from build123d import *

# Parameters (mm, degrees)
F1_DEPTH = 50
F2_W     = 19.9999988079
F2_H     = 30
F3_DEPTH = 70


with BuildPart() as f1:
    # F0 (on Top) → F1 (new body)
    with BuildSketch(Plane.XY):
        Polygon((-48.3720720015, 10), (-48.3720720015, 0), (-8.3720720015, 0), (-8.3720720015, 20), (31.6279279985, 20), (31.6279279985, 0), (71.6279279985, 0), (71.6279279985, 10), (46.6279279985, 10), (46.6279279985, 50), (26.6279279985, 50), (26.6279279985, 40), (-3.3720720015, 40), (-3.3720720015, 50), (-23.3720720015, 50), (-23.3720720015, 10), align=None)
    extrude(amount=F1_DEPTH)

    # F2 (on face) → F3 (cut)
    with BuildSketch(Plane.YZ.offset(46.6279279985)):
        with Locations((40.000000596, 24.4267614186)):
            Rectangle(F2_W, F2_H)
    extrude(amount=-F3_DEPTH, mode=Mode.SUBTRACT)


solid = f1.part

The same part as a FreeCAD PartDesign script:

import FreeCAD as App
import Part
import Sketcher
from FreeCAD import Vector
Q = App.Units.Quantity

doc = App.newDocument("Part")
body = doc.addObject("PartDesign::Body", "Body")

sketch1 = body.newObject("Sketcher::SketchObject", "Sketch")
sketch1.AttachmentSupport = (doc.getObject("XY_Plane"), [""])
sketch1.MapMode = "FlatFace"
sketch1.addGeometry(Part.LineSegment(Vector(-48.372072, 10, 0), Vector(-48.372072, 0, 0)), False)
sketch1.addGeometry(Part.LineSegment(Vector(-48.372072, 0, 0), Vector(-8.372072, 0, 0)), False)
sketch1.addGeometry(Part.LineSegment(Vector(-8.372072, 0, 0), Vector(-8.372072, 20, 0)), False)
sketch1.addGeometry(Part.LineSegment(Vector(-8.372072, 20, 0), Vector(31.627928, 20, 0)), False)
sketch1.addGeometry(Part.LineSegment(Vector(31.627928, 20, 0), Vector(31.627928, 0, 0)), False)
sketch1.addGeometry(Part.LineSegment(Vector(31.627928, 0, 0), Vector(71.627928, 0, 0)), False)
sketch1.addGeometry(Part.LineSegment(Vector(71.627928, 0, 0), Vector(71.627928, 10, 0)), False)
sketch1.addGeometry(Part.LineSegment(Vector(71.627928, 10, 0), Vector(46.627928, 10, 0)), False)
sketch1.addGeometry(Part.LineSegment(Vector(46.627928, 10, 0), Vector(46.627928, 50, 0)), False)
sketch1.addGeometry(Part.LineSegment(Vector(46.627928, 50, 0), Vector(26.627928, 50, 0)), False)
sketch1.addGeometry(Part.LineSegment(Vector(26.627928, 50, 0), Vector(26.627928, 40, 0)), False)
sketch1.addGeometry(Part.LineSegment(Vector(26.627928, 40, 0), Vector(-3.372072, 40, 0)), False)
sketch1.addGeometry(Part.LineSegment(Vector(-3.372072, 40, 0), Vector(-3.372072, 50, 0)), False)
sketch1.addGeometry(Part.LineSegment(Vector(-3.372072, 50, 0), Vector(-23.372072, 50, 0)), False)
sketch1.addGeometry(Part.LineSegment(Vector(-23.372072, 50, 0), Vector(-23.372072, 10, 0)), False)
sketch1.addGeometry(Part.LineSegment(Vector(-23.372072, 10, 0), Vector(-48.372072, 10, 0)), False)
sketch1.addConstraint(Sketcher.Constraint("Coincident", 0, 2, 1, 1))
sketch1.addConstraint(Sketcher.Constraint("Coincident", 1, 2, 2, 1))
sketch1.addConstraint(Sketcher.Constraint("Coincident", 2, 2, 3, 1))
sketch1.addConstraint(Sketcher.Constraint("Coincident", 3, 2, 4, 1))
sketch1.addConstraint(Sketcher.Constraint("Coincident", 4, 2, 5, 1))
sketch1.addConstraint(Sketcher.Constraint("Coincident", 5, 2, 6, 1))
sketch1.addConstraint(Sketcher.Constraint("Coincident", 6, 2, 7, 1))
sketch1.addConstraint(Sketcher.Constraint("Coincident", 7, 2, 8, 1))
sketch1.addConstraint(Sketcher.Constraint("Coincident", 8, 2, 9, 1))
sketch1.addConstraint(Sketcher.Constraint("Coincident", 9, 2, 10, 1))
sketch1.addConstraint(Sketcher.Constraint("Coincident", 10, 2, 11, 1))
sketch1.addConstraint(Sketcher.Constraint("Coincident", 11, 2, 12, 1))
sketch1.addConstraint(Sketcher.Constraint("Coincident", 12, 2, 13, 1))
sketch1.addConstraint(Sketcher.Constraint("Coincident", 13, 2, 14, 1))
sketch1.addConstraint(Sketcher.Constraint("Coincident", 14, 2, 15, 1))
sketch1.addConstraint(Sketcher.Constraint("Coincident", 15, 2, 0, 1))
sketch1.addConstraint(Sketcher.Constraint("Vertical", 0))
sketch1.addConstraint(Sketcher.Constraint("Horizontal", 1))
sketch1.addConstraint(Sketcher.Constraint("Vertical", 2))
sketch1.addConstraint(Sketcher.Constraint("Horizontal", 3))
sketch1.addConstraint(Sketcher.Constraint("Vertical", 4))
sketch1.addConstraint(Sketcher.Constraint("Horizontal", 5))
sketch1.addConstraint(Sketcher.Constraint("Vertical", 6))
sketch1.addConstraint(Sketcher.Constraint("Horizontal", 7))
sketch1.addConstraint(Sketcher.Constraint("Vertical", 8))
sketch1.addConstraint(Sketcher.Constraint("Horizontal", 9))
sketch1.addConstraint(Sketcher.Constraint("Vertical", 10))
sketch1.addConstraint(Sketcher.Constraint("Horizontal", 11))
sketch1.addConstraint(Sketcher.Constraint("Vertical", 12))
sketch1.addConstraint(Sketcher.Constraint("Horizontal", 13))
sketch1.addConstraint(Sketcher.Constraint("Vertical", 14))
sketch1.addConstraint(Sketcher.Constraint("Horizontal", 15))
sketch1.addConstraint(Sketcher.Constraint("PointOnObject", 0, 2, -1))
sketch1.addConstraint(Sketcher.Constraint("PointOnObject", 4, 2, -1))
sketch1.addConstraint(Sketcher.Constraint("Horizontal", 9, 2, 12, 2))
sketch1.addConstraint(Sketcher.Constraint("Horizontal", 7, 2, 14, 2))
sketch1.addConstraint(Sketcher.Constraint("Equal", 1, 3))
sketch1.addConstraint(Sketcher.Constraint("Equal", 3, 5))
sketch1.addConstraint(Sketcher.Constraint("Equal", 9, 13))
sketch1.addConstraint(Sketcher.Constraint("Equal", 7, 15))
sketch1.addConstraint(Sketcher.Constraint("Equal", 13, 2))
sketch1.addConstraint(Sketcher.Constraint("Equal", 5, 8))
sketch1.addConstraint(Sketcher.Constraint("Equal", 6, 10))
sketch1.addConstraint(Sketcher.Constraint("DistanceX", 1, 1, 1, 2, Q("40 mm")))
sketch1.addConstraint(Sketcher.Constraint("DistanceX", 7, 2, 7, 1, Q("25 mm")))
sketch1.addConstraint(Sketcher.Constraint("DistanceX", 9, 2, 9, 1, Q("20 mm")))
sketch1.addConstraint(Sketcher.Constraint("DistanceY", 0, 2, 0, 1, Q("10 mm")))
sketch1.addConstraint(Sketcher.Constraint("DistanceX", 0, 2, -1, 1, Q("48.372072 mm")))
pad1 = body.newObject("PartDesign::Pad", "Pad")
pad1.Profile = sketch1
pad1.Length = 50

sketch2 = body.newObject("Sketcher::SketchObject", "Sketch001")
sketch2.AttachmentSupport = (doc.getObject("YZ_Plane"), [""])
sketch2.MapMode = "FlatFace"
sketch2.AttachmentOffset = App.Placement(Vector(0, 0, 46.627928), App.Rotation())
sketch2.addGeometry(Part.LineSegment(Vector(30.000001, 39.426761, 0), Vector(30.000001, 9.426761, 0)), False)
sketch2.addGeometry(Part.LineSegment(Vector(30.000001, 9.426761, 0), Vector(50, 9.426761, 0)), False)
sketch2.addGeometry(Part.LineSegment(Vector(50, 9.426761, 0), Vector(50, 39.426761, 0)), False)
sketch2.addGeometry(Part.LineSegment(Vector(50, 39.426761, 0), Vector(30.000001, 39.426761, 0)), False)
sketch2.addConstraint(Sketcher.Constraint("Coincident", 0, 2, 1, 1))
sketch2.addConstraint(Sketcher.Constraint("Coincident", 1, 2, 2, 1))
sketch2.addConstraint(Sketcher.Constraint("Coincident", 2, 2, 3, 1))
sketch2.addConstraint(Sketcher.Constraint("Coincident", 3, 2, 0, 1))
sketch2.addConstraint(Sketcher.Constraint("Vertical", 0))
sketch2.addConstraint(Sketcher.Constraint("Horizontal", 1))
sketch2.addConstraint(Sketcher.Constraint("Vertical", 2))
sketch2.addConstraint(Sketcher.Constraint("Horizontal", 3))
sketch2.addConstraint(Sketcher.Constraint("DistanceX", 1, 1, 1, 2, Q("19.999999 mm")))
sketch2.addConstraint(Sketcher.Constraint("DistanceY", 0, 2, 0, 1, Q("30 mm")))
sketch2.addConstraint(Sketcher.Constraint("DistanceX", -1, 1, 0, 2, Q("30.000001 mm")))
sketch2.addConstraint(Sketcher.Constraint("DistanceY", -1, 1, 0, 2, Q("9.426761 mm")))
pocket1 = body.newObject("PartDesign::Pocket", "Pocket")
pocket1.Profile = sketch2
pocket1.Length = 70

doc.recompute()
